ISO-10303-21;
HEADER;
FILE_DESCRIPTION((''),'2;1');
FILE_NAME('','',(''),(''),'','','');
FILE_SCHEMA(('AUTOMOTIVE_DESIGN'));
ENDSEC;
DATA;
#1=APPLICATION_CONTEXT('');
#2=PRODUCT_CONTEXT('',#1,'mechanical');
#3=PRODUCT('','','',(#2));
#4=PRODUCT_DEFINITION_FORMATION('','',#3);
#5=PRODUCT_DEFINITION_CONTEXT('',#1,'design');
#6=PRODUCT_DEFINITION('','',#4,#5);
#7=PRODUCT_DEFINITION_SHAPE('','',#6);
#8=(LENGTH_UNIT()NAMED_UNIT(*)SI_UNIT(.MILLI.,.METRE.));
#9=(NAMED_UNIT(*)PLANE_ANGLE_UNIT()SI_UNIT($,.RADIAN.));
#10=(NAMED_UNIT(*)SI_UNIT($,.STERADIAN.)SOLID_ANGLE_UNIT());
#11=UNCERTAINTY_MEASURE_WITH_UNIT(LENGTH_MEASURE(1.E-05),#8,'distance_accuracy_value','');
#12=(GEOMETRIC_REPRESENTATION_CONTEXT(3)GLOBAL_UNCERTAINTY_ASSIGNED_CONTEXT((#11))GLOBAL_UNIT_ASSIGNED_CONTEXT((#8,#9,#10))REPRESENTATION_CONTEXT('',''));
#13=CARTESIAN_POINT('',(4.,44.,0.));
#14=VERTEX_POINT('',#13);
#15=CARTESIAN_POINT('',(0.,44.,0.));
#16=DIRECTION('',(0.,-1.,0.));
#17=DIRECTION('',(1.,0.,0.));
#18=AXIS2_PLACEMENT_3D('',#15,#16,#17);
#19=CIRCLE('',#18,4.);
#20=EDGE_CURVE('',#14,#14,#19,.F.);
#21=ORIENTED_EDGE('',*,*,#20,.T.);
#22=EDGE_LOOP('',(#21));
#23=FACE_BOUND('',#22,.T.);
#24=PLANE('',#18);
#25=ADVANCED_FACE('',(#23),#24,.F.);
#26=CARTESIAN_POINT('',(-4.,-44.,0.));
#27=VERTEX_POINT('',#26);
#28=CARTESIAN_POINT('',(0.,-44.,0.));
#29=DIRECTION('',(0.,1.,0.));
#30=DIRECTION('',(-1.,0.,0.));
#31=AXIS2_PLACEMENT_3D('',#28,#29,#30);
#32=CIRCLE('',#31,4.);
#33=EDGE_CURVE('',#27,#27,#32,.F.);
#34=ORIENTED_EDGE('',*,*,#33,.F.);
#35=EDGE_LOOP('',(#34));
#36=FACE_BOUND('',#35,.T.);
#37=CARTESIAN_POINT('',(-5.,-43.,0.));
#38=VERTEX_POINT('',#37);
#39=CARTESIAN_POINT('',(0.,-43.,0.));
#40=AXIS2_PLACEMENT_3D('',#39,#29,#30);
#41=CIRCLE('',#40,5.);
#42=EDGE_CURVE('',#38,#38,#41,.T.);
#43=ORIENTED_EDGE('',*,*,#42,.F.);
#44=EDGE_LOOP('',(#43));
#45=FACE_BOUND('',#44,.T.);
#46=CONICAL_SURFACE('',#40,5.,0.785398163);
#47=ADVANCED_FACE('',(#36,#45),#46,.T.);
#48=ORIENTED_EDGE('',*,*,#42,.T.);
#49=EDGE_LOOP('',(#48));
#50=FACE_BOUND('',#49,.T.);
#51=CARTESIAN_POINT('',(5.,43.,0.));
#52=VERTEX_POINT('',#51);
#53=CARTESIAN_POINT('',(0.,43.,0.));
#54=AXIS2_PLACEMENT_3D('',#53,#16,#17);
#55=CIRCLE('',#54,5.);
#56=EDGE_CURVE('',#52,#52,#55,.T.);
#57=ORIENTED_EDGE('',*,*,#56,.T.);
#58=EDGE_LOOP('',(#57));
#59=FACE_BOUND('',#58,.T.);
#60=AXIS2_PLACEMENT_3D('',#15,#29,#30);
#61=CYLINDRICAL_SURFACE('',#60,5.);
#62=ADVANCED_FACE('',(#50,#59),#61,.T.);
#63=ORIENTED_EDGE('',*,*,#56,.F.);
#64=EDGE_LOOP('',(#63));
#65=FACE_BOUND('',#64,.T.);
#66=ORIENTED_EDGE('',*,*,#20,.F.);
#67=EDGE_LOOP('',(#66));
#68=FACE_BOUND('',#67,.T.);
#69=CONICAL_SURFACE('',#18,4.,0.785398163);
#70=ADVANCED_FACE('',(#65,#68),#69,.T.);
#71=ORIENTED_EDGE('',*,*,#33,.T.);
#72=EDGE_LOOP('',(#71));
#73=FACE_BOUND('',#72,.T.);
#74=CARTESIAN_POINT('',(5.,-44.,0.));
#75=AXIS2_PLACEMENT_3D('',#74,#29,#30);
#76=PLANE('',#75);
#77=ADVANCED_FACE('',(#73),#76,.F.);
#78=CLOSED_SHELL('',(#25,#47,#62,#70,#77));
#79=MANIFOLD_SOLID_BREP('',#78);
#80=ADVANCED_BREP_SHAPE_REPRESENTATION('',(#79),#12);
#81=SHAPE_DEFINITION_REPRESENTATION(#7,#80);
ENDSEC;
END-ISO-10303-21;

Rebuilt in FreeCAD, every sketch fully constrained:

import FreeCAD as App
import Part
import Sketcher
from FreeCAD import Vector
Q = App.Units.Quantity


def edges_at(feature, points):
    """Names of the edges that pass closest to the given points."""
    edges = feature.Shape.Edges
    near = lambda p: min(range(len(edges)), key=lambda i: edges[i].distToShape(Part.Vertex(*p))[0])
    return sorted({f"Edge{near(p) + 1}" for p in points})

doc = App.newDocument("Part")
body = doc.addObject("PartDesign::Body", "Body")

# Sketch on XY plane
sketch1 = body.newObject("Sketcher::SketchObject", "Sketch")
sketch1.AttachmentSupport = (doc.getObject("XY_Plane"), [""])
sketch1.MapMode = "FlatFace"
sketch1.addGeometry([
    Part.LineSegment(Vector(5, 44, 0), Vector(0, 44, 0)),
    Part.LineSegment(Vector(0, 44, 0), Vector(0, -44, 0)),
    Part.LineSegment(Vector(0, -44, 0), Vector(5, -44, 0)),
    Part.LineSegment(Vector(5, -44, 0), Vector(5, 44, 0)),
], False)
sketch1.addConstraint([
    Sketcher.Constraint("Coincident", 0, 2, 1, 1),
    Sketcher.Constraint("Coincident", 1, 2, 2, 1),
    Sketcher.Constraint("Coincident", 2, 2, 3, 1),
    Sketcher.Constraint("Coincident", 3, 2, 0, 1),
    Sketcher.Constraint("Horizontal", 0),
    Sketcher.Constraint("Vertical", 1),
    Sketcher.Constraint("Horizontal", 2),
    Sketcher.Constraint("Vertical", 3),
    Sketcher.Constraint("Symmetric", 0, 2, 1, 2, -1, 1),
    Sketcher.Constraint("DistanceX", 0, 2, 0, 1, Q("5 mm")),
    Sketcher.Constraint("DistanceY", 1, 2, 1, 1, Q("88 mm")),
])
revolution = body.newObject("PartDesign::Revolution", "Revolution")
revolution.Profile = sketch1
revolution.ReferenceAxis = (sketch1, ["V_Axis"])
revolution.Angle = 360
doc.recompute()

chamfer = body.newObject("PartDesign::Chamfer", "Chamfer")
chamfer.Base = (revolution, edges_at(revolution, [(5, -44, 0), (5, 44, 0)]))
chamfer.Size = 1

doc.recompute()
